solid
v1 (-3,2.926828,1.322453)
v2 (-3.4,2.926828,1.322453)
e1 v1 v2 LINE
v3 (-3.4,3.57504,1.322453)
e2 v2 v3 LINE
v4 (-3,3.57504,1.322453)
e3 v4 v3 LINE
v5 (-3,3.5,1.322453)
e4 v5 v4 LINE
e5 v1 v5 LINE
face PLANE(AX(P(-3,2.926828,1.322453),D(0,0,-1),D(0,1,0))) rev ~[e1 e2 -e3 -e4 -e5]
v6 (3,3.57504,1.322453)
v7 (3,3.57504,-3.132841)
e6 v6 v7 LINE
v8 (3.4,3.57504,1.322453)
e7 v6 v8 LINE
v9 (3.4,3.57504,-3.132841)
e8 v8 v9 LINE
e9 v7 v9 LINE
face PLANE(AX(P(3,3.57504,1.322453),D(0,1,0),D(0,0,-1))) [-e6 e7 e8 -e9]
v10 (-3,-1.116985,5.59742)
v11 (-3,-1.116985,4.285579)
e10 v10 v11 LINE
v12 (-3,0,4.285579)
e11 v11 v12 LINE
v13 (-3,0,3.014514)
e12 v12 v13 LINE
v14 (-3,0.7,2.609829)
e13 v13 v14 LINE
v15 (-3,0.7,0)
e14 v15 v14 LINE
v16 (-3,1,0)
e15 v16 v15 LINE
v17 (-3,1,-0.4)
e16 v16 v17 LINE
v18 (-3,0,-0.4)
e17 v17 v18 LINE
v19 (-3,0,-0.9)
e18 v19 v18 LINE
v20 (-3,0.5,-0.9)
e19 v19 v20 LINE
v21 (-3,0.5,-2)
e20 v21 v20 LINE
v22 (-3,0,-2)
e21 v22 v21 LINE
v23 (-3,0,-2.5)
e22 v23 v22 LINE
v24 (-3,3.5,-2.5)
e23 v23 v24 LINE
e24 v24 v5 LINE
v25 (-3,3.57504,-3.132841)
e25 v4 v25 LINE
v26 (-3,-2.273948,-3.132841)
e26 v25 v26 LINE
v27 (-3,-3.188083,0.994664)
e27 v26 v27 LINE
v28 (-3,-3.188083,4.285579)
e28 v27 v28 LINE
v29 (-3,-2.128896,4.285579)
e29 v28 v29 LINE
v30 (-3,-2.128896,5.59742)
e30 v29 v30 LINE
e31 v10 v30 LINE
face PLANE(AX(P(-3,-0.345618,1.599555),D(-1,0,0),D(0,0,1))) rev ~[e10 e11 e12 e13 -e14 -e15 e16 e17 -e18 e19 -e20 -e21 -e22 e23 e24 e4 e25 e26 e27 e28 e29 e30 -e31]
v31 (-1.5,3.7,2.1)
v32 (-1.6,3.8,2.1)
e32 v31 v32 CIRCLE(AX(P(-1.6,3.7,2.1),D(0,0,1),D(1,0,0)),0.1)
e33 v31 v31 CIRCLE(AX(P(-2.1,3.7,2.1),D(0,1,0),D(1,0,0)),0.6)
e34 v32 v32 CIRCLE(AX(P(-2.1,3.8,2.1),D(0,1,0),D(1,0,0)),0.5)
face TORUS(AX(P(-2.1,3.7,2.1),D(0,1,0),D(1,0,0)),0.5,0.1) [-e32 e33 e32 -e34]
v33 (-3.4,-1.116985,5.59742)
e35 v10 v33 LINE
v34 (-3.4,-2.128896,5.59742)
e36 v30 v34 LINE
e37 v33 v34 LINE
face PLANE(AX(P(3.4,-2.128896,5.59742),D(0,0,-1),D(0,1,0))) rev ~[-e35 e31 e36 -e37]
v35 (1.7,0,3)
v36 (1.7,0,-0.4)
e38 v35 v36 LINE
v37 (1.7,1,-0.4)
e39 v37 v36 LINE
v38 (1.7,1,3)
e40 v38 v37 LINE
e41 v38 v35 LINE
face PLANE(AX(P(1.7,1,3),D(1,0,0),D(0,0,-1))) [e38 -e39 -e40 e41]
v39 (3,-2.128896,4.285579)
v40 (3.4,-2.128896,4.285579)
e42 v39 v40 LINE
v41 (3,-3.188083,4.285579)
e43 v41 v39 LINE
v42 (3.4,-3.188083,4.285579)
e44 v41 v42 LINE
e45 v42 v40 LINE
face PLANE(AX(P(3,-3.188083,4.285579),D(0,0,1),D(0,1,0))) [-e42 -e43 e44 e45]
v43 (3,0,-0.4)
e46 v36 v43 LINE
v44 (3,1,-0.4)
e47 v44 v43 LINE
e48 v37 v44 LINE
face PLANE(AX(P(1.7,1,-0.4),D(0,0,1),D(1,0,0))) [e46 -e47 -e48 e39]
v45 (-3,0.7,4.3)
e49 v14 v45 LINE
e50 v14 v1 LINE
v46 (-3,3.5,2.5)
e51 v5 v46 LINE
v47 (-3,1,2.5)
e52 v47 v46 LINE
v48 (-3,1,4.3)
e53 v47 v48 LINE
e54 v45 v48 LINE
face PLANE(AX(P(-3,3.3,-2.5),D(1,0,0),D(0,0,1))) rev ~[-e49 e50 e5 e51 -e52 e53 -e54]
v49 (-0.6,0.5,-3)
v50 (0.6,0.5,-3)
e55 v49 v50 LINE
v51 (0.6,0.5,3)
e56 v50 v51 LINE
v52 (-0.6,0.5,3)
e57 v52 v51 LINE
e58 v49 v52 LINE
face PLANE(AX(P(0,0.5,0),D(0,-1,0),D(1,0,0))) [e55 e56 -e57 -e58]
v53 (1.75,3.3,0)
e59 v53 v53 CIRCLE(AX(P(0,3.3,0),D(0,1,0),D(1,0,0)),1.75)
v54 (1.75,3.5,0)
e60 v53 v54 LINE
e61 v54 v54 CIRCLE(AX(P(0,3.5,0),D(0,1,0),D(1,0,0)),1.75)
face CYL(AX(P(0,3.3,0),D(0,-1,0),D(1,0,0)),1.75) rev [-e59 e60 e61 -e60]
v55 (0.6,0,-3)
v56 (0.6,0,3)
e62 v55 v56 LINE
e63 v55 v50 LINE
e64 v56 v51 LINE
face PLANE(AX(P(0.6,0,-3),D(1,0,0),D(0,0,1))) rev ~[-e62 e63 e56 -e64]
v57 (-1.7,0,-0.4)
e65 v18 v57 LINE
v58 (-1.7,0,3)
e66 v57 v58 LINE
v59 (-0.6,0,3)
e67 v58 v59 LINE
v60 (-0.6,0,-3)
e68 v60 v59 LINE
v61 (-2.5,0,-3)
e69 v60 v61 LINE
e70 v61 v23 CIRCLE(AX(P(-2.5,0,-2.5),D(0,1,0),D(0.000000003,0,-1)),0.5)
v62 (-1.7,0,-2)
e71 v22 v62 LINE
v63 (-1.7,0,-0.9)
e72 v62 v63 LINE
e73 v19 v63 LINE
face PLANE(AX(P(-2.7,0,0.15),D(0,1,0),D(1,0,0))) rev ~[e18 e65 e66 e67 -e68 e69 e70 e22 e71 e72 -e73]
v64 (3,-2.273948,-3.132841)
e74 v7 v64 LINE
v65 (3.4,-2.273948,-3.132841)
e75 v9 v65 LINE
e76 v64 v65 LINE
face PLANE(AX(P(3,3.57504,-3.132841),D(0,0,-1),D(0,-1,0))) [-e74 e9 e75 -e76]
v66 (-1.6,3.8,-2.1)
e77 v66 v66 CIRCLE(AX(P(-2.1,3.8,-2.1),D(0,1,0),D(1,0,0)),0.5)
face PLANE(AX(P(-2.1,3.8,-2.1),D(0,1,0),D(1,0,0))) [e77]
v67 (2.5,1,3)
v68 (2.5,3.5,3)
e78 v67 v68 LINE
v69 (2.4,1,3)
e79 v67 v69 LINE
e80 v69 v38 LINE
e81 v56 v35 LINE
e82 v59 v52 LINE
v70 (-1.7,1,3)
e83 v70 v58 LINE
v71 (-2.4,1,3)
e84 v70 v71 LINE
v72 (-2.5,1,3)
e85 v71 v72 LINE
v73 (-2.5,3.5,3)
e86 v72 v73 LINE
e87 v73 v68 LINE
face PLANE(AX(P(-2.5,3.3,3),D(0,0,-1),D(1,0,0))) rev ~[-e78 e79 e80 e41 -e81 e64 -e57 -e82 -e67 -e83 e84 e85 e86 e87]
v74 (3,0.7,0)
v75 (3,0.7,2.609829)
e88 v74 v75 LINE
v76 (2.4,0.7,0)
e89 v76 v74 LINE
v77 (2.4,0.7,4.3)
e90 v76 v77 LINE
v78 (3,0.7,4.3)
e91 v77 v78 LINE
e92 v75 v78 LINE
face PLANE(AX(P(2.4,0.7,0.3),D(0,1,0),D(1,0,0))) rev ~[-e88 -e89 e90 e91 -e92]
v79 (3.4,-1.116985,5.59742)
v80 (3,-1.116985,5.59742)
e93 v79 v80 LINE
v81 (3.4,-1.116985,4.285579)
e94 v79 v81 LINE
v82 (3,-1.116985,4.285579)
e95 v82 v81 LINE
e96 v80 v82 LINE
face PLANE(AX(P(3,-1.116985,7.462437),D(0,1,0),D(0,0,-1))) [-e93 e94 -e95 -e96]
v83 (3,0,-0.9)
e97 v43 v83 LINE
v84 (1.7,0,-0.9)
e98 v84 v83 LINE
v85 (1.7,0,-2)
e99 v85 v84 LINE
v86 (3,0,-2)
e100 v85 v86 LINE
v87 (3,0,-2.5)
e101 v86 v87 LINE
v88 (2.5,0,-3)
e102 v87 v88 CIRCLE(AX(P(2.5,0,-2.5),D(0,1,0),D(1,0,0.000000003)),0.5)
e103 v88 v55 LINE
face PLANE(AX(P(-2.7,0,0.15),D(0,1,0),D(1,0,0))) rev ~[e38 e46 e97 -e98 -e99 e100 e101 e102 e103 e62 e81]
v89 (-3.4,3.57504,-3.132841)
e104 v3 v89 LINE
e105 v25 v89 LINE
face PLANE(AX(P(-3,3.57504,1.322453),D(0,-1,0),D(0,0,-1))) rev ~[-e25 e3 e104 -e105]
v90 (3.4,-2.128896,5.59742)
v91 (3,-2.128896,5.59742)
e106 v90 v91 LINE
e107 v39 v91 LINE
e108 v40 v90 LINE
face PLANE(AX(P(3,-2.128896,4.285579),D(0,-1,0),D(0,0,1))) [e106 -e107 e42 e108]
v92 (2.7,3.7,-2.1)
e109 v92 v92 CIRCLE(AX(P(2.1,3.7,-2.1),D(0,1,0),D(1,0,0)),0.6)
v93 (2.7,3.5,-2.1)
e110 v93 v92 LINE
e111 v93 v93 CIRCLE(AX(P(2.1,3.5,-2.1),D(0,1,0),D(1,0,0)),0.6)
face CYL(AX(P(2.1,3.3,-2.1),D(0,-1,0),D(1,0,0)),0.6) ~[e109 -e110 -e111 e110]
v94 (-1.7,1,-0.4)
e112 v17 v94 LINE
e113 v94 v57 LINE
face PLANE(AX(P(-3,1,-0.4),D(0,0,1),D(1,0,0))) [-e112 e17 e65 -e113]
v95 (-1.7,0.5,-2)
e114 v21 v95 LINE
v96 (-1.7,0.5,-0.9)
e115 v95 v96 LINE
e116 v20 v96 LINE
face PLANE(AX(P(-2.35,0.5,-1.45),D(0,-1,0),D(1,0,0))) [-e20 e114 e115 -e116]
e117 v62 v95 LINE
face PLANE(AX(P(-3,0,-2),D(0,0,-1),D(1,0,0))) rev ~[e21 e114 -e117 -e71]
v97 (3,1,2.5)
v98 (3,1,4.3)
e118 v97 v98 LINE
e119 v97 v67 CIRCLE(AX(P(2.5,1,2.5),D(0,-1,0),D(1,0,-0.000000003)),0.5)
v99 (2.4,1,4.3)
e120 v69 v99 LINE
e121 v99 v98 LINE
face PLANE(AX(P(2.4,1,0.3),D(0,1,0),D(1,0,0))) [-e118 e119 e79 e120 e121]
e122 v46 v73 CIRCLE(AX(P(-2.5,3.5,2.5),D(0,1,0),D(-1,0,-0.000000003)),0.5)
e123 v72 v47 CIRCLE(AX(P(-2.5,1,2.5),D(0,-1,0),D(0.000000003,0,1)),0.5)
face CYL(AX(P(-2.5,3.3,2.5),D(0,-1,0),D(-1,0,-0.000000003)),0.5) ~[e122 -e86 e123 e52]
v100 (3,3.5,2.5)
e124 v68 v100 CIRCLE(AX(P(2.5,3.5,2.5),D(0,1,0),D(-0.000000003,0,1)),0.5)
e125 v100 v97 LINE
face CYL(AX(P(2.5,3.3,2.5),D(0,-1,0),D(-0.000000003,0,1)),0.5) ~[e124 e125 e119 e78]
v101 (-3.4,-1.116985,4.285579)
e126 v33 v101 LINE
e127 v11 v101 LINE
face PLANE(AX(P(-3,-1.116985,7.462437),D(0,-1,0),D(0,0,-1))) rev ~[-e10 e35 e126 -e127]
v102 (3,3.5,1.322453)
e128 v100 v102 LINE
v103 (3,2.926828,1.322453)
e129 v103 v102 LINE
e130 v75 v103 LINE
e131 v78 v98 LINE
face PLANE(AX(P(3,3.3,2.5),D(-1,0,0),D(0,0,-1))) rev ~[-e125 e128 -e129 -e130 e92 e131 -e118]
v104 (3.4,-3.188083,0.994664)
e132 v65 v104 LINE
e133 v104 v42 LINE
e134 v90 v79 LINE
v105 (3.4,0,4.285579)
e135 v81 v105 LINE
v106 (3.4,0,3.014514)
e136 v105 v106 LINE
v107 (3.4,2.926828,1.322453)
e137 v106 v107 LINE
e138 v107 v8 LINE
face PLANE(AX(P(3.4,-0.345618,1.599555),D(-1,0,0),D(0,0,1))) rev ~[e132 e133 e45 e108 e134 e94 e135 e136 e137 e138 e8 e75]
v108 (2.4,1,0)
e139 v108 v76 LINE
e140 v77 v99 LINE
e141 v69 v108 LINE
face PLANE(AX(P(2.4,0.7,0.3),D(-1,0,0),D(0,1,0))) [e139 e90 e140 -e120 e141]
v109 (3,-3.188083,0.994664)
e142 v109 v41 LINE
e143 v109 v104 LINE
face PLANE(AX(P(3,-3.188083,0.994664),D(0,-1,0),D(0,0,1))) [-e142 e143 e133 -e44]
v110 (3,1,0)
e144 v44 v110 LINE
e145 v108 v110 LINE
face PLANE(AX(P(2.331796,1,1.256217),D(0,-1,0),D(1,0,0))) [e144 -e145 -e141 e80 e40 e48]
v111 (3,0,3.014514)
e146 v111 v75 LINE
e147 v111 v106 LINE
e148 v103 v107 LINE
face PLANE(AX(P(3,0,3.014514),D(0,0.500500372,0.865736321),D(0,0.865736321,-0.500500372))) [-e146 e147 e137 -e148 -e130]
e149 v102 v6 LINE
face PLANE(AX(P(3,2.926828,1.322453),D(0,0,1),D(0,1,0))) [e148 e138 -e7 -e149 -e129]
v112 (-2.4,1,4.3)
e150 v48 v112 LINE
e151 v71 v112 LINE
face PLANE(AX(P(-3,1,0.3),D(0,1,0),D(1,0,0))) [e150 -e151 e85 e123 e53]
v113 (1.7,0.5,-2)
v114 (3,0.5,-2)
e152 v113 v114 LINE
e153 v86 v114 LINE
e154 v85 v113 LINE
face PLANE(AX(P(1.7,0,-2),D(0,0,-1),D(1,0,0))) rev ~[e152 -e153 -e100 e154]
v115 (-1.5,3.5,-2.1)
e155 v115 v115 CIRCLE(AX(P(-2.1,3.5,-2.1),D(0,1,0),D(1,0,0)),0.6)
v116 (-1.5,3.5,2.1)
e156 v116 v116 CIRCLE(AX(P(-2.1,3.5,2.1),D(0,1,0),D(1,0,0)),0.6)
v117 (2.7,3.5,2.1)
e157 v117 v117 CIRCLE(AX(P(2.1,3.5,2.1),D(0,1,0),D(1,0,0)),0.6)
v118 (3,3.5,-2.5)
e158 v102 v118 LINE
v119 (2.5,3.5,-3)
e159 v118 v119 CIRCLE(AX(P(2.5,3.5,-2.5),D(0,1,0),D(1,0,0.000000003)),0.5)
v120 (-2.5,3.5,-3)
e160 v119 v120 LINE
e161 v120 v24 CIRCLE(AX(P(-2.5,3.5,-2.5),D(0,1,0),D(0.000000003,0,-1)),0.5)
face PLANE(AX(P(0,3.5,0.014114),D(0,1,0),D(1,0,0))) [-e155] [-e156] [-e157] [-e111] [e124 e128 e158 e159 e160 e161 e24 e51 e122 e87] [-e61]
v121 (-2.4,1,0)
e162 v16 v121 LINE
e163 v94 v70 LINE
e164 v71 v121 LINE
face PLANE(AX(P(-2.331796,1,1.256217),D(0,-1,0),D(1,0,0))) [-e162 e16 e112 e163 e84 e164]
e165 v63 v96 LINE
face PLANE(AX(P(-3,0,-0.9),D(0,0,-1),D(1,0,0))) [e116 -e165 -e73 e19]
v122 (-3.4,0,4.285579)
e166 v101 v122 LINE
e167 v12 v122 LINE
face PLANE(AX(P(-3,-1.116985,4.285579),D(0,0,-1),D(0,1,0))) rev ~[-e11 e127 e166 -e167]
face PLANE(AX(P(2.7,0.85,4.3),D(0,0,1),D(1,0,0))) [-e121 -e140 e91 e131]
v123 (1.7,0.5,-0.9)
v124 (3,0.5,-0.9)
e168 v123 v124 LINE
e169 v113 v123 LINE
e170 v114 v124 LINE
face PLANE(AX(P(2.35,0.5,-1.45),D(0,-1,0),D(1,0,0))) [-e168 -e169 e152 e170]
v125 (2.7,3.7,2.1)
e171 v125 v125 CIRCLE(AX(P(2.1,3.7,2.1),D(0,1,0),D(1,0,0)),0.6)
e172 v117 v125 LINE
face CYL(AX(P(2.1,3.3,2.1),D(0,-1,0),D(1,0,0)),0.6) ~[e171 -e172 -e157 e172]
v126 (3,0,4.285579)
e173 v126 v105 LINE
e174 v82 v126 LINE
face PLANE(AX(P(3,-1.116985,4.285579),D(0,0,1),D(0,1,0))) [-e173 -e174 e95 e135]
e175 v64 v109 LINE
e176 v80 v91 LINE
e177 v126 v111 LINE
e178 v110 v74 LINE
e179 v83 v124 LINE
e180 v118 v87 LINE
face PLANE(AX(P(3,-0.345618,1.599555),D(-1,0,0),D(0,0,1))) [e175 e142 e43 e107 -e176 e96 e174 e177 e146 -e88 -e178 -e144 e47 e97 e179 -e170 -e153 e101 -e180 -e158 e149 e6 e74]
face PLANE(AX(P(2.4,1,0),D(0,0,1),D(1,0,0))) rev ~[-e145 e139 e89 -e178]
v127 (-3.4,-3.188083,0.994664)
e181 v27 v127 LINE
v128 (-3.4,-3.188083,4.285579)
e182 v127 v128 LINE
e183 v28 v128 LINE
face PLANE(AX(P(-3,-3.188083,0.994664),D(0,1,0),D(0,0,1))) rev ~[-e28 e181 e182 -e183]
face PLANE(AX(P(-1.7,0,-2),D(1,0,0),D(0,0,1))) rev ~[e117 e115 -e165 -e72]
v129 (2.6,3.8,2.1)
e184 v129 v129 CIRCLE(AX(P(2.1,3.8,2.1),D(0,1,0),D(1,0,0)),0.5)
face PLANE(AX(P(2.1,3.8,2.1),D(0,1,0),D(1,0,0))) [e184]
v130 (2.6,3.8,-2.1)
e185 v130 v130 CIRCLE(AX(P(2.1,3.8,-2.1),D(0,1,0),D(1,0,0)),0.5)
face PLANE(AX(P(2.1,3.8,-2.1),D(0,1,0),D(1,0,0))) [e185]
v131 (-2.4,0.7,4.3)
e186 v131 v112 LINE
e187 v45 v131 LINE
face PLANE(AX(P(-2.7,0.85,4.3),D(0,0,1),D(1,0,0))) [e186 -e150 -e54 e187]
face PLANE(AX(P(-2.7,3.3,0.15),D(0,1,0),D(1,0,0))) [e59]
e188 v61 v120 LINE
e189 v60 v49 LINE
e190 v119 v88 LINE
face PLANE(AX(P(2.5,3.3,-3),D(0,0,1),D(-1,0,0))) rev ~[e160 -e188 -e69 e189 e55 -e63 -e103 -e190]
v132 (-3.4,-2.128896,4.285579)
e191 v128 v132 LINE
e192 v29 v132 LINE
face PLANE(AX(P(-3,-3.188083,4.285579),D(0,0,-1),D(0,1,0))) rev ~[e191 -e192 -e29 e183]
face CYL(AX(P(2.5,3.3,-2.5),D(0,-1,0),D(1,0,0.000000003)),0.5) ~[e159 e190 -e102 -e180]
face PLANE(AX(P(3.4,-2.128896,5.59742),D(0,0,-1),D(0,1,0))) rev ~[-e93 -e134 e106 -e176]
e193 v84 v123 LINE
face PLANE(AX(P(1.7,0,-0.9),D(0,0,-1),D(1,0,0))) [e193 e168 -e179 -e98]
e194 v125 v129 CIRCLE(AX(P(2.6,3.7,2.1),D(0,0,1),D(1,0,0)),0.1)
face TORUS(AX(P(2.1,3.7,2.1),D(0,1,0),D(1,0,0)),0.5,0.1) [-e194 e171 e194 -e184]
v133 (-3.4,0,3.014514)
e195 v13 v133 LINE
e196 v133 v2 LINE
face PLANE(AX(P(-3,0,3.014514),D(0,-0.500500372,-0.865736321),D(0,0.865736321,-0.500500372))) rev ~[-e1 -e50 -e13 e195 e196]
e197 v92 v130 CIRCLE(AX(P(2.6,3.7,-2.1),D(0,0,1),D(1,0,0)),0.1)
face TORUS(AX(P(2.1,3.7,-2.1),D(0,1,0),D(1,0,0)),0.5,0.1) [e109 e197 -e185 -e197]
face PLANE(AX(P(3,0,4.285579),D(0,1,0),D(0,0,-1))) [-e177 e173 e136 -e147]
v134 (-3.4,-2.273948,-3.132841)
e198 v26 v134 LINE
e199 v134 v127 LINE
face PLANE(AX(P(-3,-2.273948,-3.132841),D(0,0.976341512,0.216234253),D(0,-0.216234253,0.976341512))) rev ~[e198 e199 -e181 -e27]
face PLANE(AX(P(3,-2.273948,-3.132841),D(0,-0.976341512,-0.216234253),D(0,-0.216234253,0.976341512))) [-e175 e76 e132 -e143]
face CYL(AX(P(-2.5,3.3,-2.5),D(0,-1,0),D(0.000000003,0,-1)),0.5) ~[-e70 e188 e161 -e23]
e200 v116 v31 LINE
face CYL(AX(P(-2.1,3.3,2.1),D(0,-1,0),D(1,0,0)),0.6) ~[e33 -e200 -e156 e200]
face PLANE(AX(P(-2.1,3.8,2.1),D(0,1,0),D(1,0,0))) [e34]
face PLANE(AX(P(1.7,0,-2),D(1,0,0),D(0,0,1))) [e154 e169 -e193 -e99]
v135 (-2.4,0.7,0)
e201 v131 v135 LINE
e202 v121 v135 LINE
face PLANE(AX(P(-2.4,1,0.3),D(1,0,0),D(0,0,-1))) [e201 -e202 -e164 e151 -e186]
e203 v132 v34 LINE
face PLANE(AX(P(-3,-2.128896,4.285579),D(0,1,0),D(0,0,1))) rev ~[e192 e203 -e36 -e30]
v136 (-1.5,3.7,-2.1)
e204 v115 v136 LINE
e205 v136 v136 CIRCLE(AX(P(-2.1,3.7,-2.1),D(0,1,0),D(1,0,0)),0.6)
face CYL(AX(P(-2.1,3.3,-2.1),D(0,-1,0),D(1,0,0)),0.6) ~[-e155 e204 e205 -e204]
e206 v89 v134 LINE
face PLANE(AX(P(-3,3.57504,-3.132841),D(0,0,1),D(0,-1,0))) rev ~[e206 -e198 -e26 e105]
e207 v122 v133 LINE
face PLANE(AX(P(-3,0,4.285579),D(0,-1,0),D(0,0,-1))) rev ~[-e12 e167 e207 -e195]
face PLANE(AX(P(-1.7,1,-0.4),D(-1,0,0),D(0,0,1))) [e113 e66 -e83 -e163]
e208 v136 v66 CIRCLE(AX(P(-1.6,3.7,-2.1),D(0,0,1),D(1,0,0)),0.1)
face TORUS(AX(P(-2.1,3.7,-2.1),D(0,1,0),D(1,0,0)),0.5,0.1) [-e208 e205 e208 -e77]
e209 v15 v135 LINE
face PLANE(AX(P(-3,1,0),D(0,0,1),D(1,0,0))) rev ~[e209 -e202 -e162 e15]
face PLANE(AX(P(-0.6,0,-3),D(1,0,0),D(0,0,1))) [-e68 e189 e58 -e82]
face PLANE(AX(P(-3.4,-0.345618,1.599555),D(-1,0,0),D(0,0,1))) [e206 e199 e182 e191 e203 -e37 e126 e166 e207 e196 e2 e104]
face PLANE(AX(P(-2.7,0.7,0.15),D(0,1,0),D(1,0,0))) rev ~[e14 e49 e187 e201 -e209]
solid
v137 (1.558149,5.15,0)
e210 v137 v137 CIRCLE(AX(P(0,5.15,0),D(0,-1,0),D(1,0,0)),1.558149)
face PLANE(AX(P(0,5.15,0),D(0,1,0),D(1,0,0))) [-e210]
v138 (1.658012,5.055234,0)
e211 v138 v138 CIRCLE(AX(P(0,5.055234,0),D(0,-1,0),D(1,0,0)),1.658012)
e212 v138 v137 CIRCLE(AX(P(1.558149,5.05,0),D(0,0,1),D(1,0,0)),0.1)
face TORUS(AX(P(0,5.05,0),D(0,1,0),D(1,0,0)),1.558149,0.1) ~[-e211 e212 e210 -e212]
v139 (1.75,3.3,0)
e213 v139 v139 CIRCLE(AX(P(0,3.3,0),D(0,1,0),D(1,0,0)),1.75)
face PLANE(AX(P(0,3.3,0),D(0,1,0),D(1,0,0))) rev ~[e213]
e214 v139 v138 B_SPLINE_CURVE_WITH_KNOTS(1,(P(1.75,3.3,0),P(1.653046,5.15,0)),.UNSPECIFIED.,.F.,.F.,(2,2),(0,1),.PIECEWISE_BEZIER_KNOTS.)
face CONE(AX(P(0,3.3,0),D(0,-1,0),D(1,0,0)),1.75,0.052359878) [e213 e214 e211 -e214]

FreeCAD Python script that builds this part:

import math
import FreeCAD as App
import Part
import Sketcher
Q = App.Units.Quantity


def edges_at(feature, points):
    """Names of the edges that pass closest to the given points."""
    edges = feature.Shape.Edges
    near = lambda p: min(range(len(edges)), key=lambda i: edges[i].distToShape(Part.Vertex(*p))[0])
    return sorted({f"Edge{near(p) + 1}" for p in points})

doc = App.newDocument("Part")
body = doc.addObject("PartDesign::Body", "Body")

sketch1 = body.newObject("Sketcher::SketchObject", "Sketch")
sketch1.AttachmentSupport = (doc.getObject("XZ_Plane"), [""])
sketch1.MapMode = "FlatFace"
sketch1.addGeometry(Part.ArcOfCircle(Part.Circle(App.Vector(-2.5, 2.5, 0), App.Vector(0, 0, 1), 0.5), math.radians(90), math.radians(180)), False)
sketch1.addGeometry(Part.LineSegment(App.Vector(-2.5, 3, 0), App.Vector(2.5, 3, 0)), False)
sketch1.addGeometry(Part.ArcOfCircle(Part.Circle(App.Vector(2.5, 2.5, 0), App.Vector(0, 0, 1), 0.5), math.radians(0), math.radians(90)), False)
sketch1.addGeometry(Part.LineSegment(App.Vector(3, 2.5, 0), App.Vector(3, -2.5, 0)), False)
sketch1.addGeometry(Part.ArcOfCircle(Part.Circle(App.Vector(2.5, -2.5, 0), App.Vector(0, 0, 1), 0.5), math.radians(-90), math.radians(0)), False)
sketch1.addGeometry(Part.LineSegment(App.Vector(2.5, -3, 0), App.Vector(-2.5, -3, 0)), False)
sketch1.addGeometry(Part.ArcOfCircle(Part.Circle(App.Vector(-2.5, -2.5, 0), App.Vector(0, 0, 1), 0.5), math.radians(180), math.radians(270)), False)
sketch1.addGeometry(Part.LineSegment(App.Vector(-3, -2.5, 0), App.Vector(-3, 2.5, 0)), False)
sketch1.addConstraint(Sketcher.Constraint("Tangent", 0, 1, 1, 1))
sketch1.addConstraint(Sketcher.Constraint("Tangent", 1, 2, 2, 2))
sketch1.addConstraint(Sketcher.Constraint("Tangent", 2, 1, 3, 1))
sketch1.addConstraint(Sketcher.Constraint("Tangent", 3, 2, 4, 2))
sketch1.addConstraint(Sketcher.Constraint("Tangent", 4, 1, 5, 1))
sketch1.addConstraint(Sketcher.Constraint("Tangent", 5, 2, 6, 2))
sketch1.addConstraint(Sketcher.Constraint("Tangent", 6, 1, 7, 1))
sketch1.addConstraint(Sketcher.Constraint("Tangent", 7, 2, 0, 2))
sketch1.addConstraint(Sketcher.Constraint("Horizontal", 1))
sketch1.addConstraint(Sketcher.Constraint("Vertical", 3))
sketch1.addConstraint(Sketcher.Constraint("Horizontal", 5))
sketch1.addConstraint(Sketcher.Constraint("Vertical", 7))
sketch1.addConstraint(Sketcher.Constraint("Equal", 0, 2))
sketch1.addConstraint(Sketcher.Constraint("Equal", 2, 4))
sketch1.addConstraint(Sketcher.Constraint("Equal", 4, 6))
sketch1.addConstraint(Sketcher.Constraint("Symmetric", 0, 3, 4, 3, -1, 1))
sketch1.addConstraint(Sketcher.Constraint("Equal", 5, 3))
sketch1.addConstraint(Sketcher.Constraint("Radius", 0, Q("0.5 mm")))
sketch1.addConstraint(Sketcher.Constraint("DistanceX", 1, 1, 1, 2, Q("5 mm")))
pad1 = body.newObject("PartDesign::Pad", "Pad")
pad1.Profile = sketch1
pad1.Length = 3.3
pad1.Reversed = True

sketch2 = body.newObject("Sketcher::SketchObject", "Sketch001")
sketch2.AttachmentSupport = (doc.getObject("XZ_Plane"), [""])
sketch2.MapMode = "FlatFace"
sketch2.AttachmentOffset = App.Placement(App.Vector(0, 0, -3.3), App.Rotation())
sketch2.addGeometry(Part.Circle(App.Vector(2.1, 2.1, 0), App.Vector(0, 0, 1), 0.6), False)
sketch2.addGeometry(Part.Circle(App.Vector(-2.1, 2.1, 0), App.Vector(0, 0, 1), 0.6), False)
sketch2.addGeometry(Part.Circle(App.Vector(-2.1, -2.1, 0), App.Vector(0, 0, 1), 0.6), False)
sketch2.addGeometry(Part.Circle(App.Vector(2.1, -2.1, 0), App.Vector(0, 0, 1), 0.6), False)
sketch2.addConstraint(Sketcher.Constraint("Equal", 0, 1))
sketch2.addConstraint(Sketcher.Constraint("Equal", 1, 2))
sketch2.addConstraint(Sketcher.Constraint("Equal", 2, 3))
sketch2.addConstraint(Sketcher.Constraint("Symmetric", 0, 3, 2, 3, -1, 1))
sketch2.addConstraint(Sketcher.Constraint("Symmetric", 1, 3, 3, 3, -1, 1))
sketch2.addConstraint(Sketcher.Constraint("Symmetric", 0, 3, 1, 3, -2))
sketch2.addConstraint(Sketcher.Constraint("Diameter", 0, Q("1.2 mm")))
sketch2.addConstraint(Sketcher.Constraint("DistanceX", -1, 1, 0, 3, Q("2.1 mm")))
sketch2.addConstraint(Sketcher.Constraint("DistanceY", -1, 1, 0, 3, Q("2.1 mm")))
pad2 = body.newObject("PartDesign::Pad", "Pad001")
pad2.Profile = sketch2
pad2.Length = 0.5
pad2.Reversed = True

sketch3 = body.newObject("Sketcher::SketchObject", "Sketch002")
sketch3.AttachmentSupport = (doc.getObject("XZ_Plane"), [""])
sketch3.MapMode = "FlatFace"
sketch3.AttachmentOffset = App.Placement(App.Vector(0, 0, -1), App.Rotation())
sketch3.addGeometry(Part.LineSegment(App.Vector(-1.7, -0.4, 0), App.Vector(-1.7, 3, 0)), False)
sketch3.addGeometry(Part.LineSegment(App.Vector(-1.7, 3, 0), App.Vector(-2.5, 3, 0)), False)
sketch3.addGeometry(Part.ArcOfCircle(Part.Circle(App.Vector(-2.5, 2.5, 0), App.Vector(0, 0, 1), 0.5), math.radians(90), math.radians(180)), False)
sketch3.addGeometry(Part.LineSegment(App.Vector(-3, 2.5, 0), App.Vector(-3, -0.4, 0)), False)
sketch3.addGeometry(Part.LineSegment(App.Vector(-3, -0.4, 0), App.Vector(-1.7, -0.4, 0)), False)
sketch3.addGeometry(Part.LineSegment(App.Vector(2.5, 3, 0), App.Vector(1.7, 3, 0)), False)
sketch3.addGeometry(Part.LineSegment(App.Vector(1.7, 3, 0), App.Vector(1.7, -0.4, 0)), False)
sketch3.addGeometry(Part.LineSegment(App.Vector(1.7, -0.4, 0), App.Vector(3, -0.4, 0)), False)
sketch3.addGeometry(Part.LineSegment(App.Vector(3, -0.4, 0), App.Vector(3, 2.5, 0)), False)
sketch3.addGeometry(Part.ArcOfCircle(Part.Circle(App.Vector(2.5, 2.5, 0), App.Vector(0, 0, 1), 0.5), math.radians(0), math.radians(90)), False)
sketch3.addConstraint(Sketcher.Constraint("Coincident", 0, 2, 1, 1))
sketch3.addConstraint(Sketcher.Constraint("Tangent", 1, 2, 2, 1))
sketch3.addConstraint(Sketcher.Constraint("Tangent", 2, 2, 3, 1))
sketch3.addConstraint(Sketcher.Constraint("Coincident", 3, 2, 4, 1))
sketch3.addConstraint(Sketcher.Constraint("Coincident", 4, 2, 0, 1))
sketch3.addConstraint(Sketcher.Constraint("Coincident", 5, 2, 6, 1))
sketch3.addConstraint(Sketcher.Constraint("Coincident", 6, 2, 7, 1))
sketch3.addConstraint(Sketcher.Constraint("Coincident", 7, 2, 8, 1))
sketch3.addConstraint(Sketcher.Constraint("Tangent", 8, 2, 9, 1))
sketch3.addConstraint(Sketcher.Constraint("Tangent", 9, 2, 5, 1))
sketch3.addConstraint(Sketcher.Constraint("Vertical", 0))
sketch3.addConstraint(Sketcher.Constraint("Horizontal", 1))
sketch3.addConstraint(Sketcher.Constraint("Vertical", 3))
sketch3.addConstraint(Sketcher.Constraint("Horizontal", 4))
sketch3.addConstraint(Sketcher.Constraint("Horizontal", 5))
sketch3.addConstraint(Sketcher.Constraint("Vertical", 6))
sketch3.addConstraint(Sketcher.Constraint("Horizontal", 7))
sketch3.addConstraint(Sketcher.Constraint("Vertical", 8))
sketch3.addConstraint(Sketcher.Constraint("Equal", 2, 9))
sketch3.addConstraint(Sketcher.Constraint("Symmetric", 2, 3, 9, 3, -2))
sketch3.addConstraint(Sketcher.Constraint("Symmetric", 4, 2, 6, 2, -2))
sketch3.addConstraint(Sketcher.Constraint("Radius", 2, Q("0.5 mm")))
sketch3.addConstraint(Sketcher.Constraint("DistanceX", 1, 2, 1, 1, Q("0.8 mm")))
sketch3.addConstraint(Sketcher.Constraint("DistanceY", 0, 1, 0, 2, Q("3.4 mm")))
sketch3.addConstraint(Sketcher.Constraint("DistanceY", -1, 1, 0, 2, Q("3 mm")))
sketch3.addConstraint(Sketcher.Constraint("DistanceX", 2, 2, -1, 1, Q("3 mm")))
pocket1 = body.newObject("PartDesign::Pocket", "Pocket")
pocket1.Profile = sketch3
pocket1.Length = 1
pocket1.Reversed = True

sketch4 = body.newObject("Sketcher::SketchObject", "Sketch003")
sketch4.AttachmentSupport = (doc.getObject("XZ_Plane"), [""])
sketch4.MapMode = "FlatFace"
sketch4.addGeometry(Part.LineSegment(App.Vector(-0.6, 3, 0), App.Vector(-0.6, -3, 0)), False)
sketch4.addGeometry(Part.LineSegment(App.Vector(-0.6, -3, 0), App.Vector(0.6, -3, 0)), False)
sketch4.addGeometry(Part.LineSegment(App.Vector(0.6, -3, 0), App.Vector(0.6, 3, 0)), False)
sketch4.addGeometry(Part.LineSegment(App.Vector(0.6, 3, 0), App.Vector(-0.6, 3, 0)), False)
sketch4.addGeometry(Part.LineSegment(App.Vector(1.7, -0.9, 0), App.Vector(1.7, -2, 0)), False)
sketch4.addGeometry(Part.LineSegment(App.Vector(1.7, -2, 0), App.Vector(3, -2, 0)), False)
sketch4.addGeometry(Part.LineSegment(App.Vector(3, -2, 0), App.Vector(3, -0.9, 0)), False)
sketch4.addGeometry(Part.LineSegment(App.Vector(3, -0.9, 0), App.Vector(1.7, -0.9, 0)), False)
sketch4.addGeometry(Part.LineSegment(App.Vector(-3, -0.9, 0), App.Vector(-3, -2, 0)), False)
sketch4.addGeometry(Part.LineSegment(App.Vector(-3, -2, 0), App.Vector(-1.7, -2, 0)), False)
sketch4.addGeometry(Part.LineSegment(App.Vector(-1.7, -2, 0), App.Vector(-1.7, -0.9, 0)), False)
sketch4.addGeometry(Part.LineSegment(App.Vector(-1.7, -0.9, 0), App.Vector(-3, -0.9, 0)), False)
sketch4.addConstraint(Sketcher.Constraint("Coincident", 0, 2, 1, 1))
sketch4.addConstraint(Sketcher.Constraint("Coincident", 1, 2, 2, 1))
sketch4.addConstraint(Sketcher.Constraint("Coincident", 2, 2, 3, 1))
sketch4.addConstraint(Sketcher.Constraint("Coincident", 3, 2, 0, 1))
sketch4.addConstraint(Sketcher.Constraint("Coincident", 4, 2, 5, 1))
sketch4.addConstraint(Sketcher.Constraint("Coincident", 5, 2, 6, 1))
sketch4.addConstraint(Sketcher.Constraint("Coincident", 6, 2, 7, 1))
sketch4.addConstraint(Sketcher.Constraint("Coincident", 7, 2, 4, 1))
sketch4.addConstraint(Sketcher.Constraint("Coincident", 8, 2, 9, 1))
sketch4.addConstraint(Sketcher.Constraint("Coincident", 9, 2, 10, 1))
sketch4.addConstraint(Sketcher.Constraint("Coincident", 10, 2, 11, 1))
sketch4.addConstraint(Sketcher.Constraint("Coincident", 11, 2, 8, 1))
sketch4.addConstraint(Sketcher.Constraint("Vertical", 0))
sketch4.addConstraint(Sketcher.Constraint("Horizontal", 1))
sketch4.addConstraint(Sketcher.Constraint("Vertical", 2))
sketch4.addConstraint(Sketcher.Constraint("Horizontal", 3))
sketch4.addConstraint(Sketcher.Constraint("Vertical", 4))
sketch4.addConstraint(Sketcher.Constraint("Horizontal", 5))
sketch4.addConstraint(Sketcher.Constraint("Vertical", 6))
sketch4.addConstraint(Sketcher.Constraint("Horizontal", 7))
sketch4.addConstraint(Sketcher.Constraint("Vertical", 8))
sketch4.addConstraint(Sketcher.Constraint("Horizontal", 9))
sketch4.addConstraint(Sketcher.Constraint("Vertical", 10))
sketch4.addConstraint(Sketcher.Constraint("Horizontal", 11))
sketch4.addConstraint(Sketcher.Constraint("Symmetric", 0, 2, 2, 2, -1, 1))
sketch4.addConstraint(Sketcher.Constraint("Symmetric", 5, 2, 8, 2, -2))
sketch4.addConstraint(Sketcher.Constraint("Symmetric", 7, 2, 10, 2, -2))
sketch4.addConstraint(Sketcher.Constraint("DistanceY", 0, 2, 0, 1, Q("6 mm")))
sketch4.addConstraint(Sketcher.Constraint("DistanceX", 1, 1, 1, 2, Q("1.2 mm")))
sketch4.addConstraint(Sketcher.Constraint("DistanceX", 5, 1, 5, 2, Q("1.3 mm")))
sketch4.addConstraint(Sketcher.Constraint("DistanceY", 4, 2, 4, 1, Q("1.1 mm")))
sketch4.addConstraint(Sketcher.Constraint("DistanceY", 4, 2, -1, 1, Q("2 mm")))
sketch4.addConstraint(Sketcher.Constraint("DistanceX", -1, 1, 5, 2, Q("3 mm")))
pocket2 = body.newObject("PartDesign::Pocket", "Pocket001")
pocket2.Profile = sketch4
pocket2.Length = 0.5
doc.recompute()

fillet = body.newObject("PartDesign::Fillet", "Fillet")
fillet.Base = (pocket2, edges_at(pocket2, [
    (1.5, 3.8, 2.1),
    (-2.7, 3.8, 2.1),
    (-2.7, 3.8, -2.1),
    (1.5, 3.8, -2.1),
]))
fillet.Radius = 0.1
body2 = doc.addObject("PartDesign::Body", "Body001")

sketch5 = body2.newObject("Sketcher::SketchObject", "Sketch004")
sketch5.AttachmentSupport = (doc.getObject("XZ_Plane001"), [""])
sketch5.MapMode = "FlatFace"
sketch5.AttachmentOffset = App.Placement(App.Vector(0, 0, -3.3), App.Rotation())
sketch5.addGeometry(Part.LineSegment(App.Vector(2.5, -3, 0), App.Vector(-2.5, -3, 0)), False)
sketch5.addGeometry(Part.ArcOfCircle(Part.Circle(App.Vector(-2.5, -2.5, 0), App.Vector(0, 0, 1), 0.5), math.radians(180), math.radians(270)), False)
sketch5.addGeometry(Part.LineSegment(App.Vector(-3, -2.5, 0), App.Vector(-3, 2.5, 0)), False)
sketch5.addGeometry(Part.ArcOfCircle(Part.Circle(App.Vector(-2.5, 2.5, 0), App.Vector(0, 0, 1), 0.5), math.radians(90), math.radians(180)), False)
sketch5.addGeometry(Part.LineSegment(App.Vector(-2.5, 3, 0), App.Vector(2.5, 3, 0)), False)
sketch5.addGeometry(Part.ArcOfCircle(Part.Circle(App.Vector(2.5, 2.5, 0), App.Vector(0, 0, 1), 0.5), math.radians(0), math.radians(90)), False)
sketch5.addGeometry(Part.LineSegment(App.Vector(3, 2.5, 0), App.Vector(3, -2.5, 0)), False)
sketch5.addGeometry(Part.ArcOfCircle(Part.Circle(App.Vector(2.5, -2.5, 0), App.Vector(0, 0, 1), 0.5), math.radians(-90), math.radians(0)), False)
sketch5.addGeometry(Part.Circle(App.Vector(-2.1, 2.1, 0), App.Vector(0, 0, 1), 0.6), False)
sketch5.addGeometry(Part.Circle(App.Vector(2.1, 2.1, 0), App.Vector(0, 0, 1), 0.6), False)
sketch5.addGeometry(Part.Circle(App.Vector(-2.1, -2.1, 0), App.Vector(0, 0, 1), 0.6), False)
sketch5.addGeometry(Part.Circle(App.Vector(0, 0, 0), App.Vector(0, 0, 1), 1.75), False)
sketch5.addGeometry(Part.Circle(App.Vector(2.1, -2.1, 0), App.Vector(0, 0, 1), 0.6), False)
sketch5.addConstraint(Sketcher.Constraint("Tangent", 0, 2, 1, 2))
sketch5.addConstraint(Sketcher.Constraint("Tangent", 1, 1, 2, 1))
sketch5.addConstraint(Sketcher.Constraint("Tangent", 2, 2, 3, 2))
sketch5.addConstraint(Sketcher.Constraint("Tangent", 3, 1, 4, 1))
sketch5.addConstraint(Sketcher.Constraint("Tangent", 4, 2, 5, 2))
sketch5.addConstraint(Sketcher.Constraint("Tangent", 5, 1, 6, 1))
sketch5.addConstraint(Sketcher.Constraint("Tangent", 6, 2, 7, 2))
sketch5.addConstraint(Sketcher.Constraint("Tangent", 7, 1, 0, 1))
sketch5.addConstraint(Sketcher.Constraint("Horizontal", 0))
sketch5.addConstraint(Sketcher.Constraint("Vertical", 2))
sketch5.addConstraint(Sketcher.Constraint("Horizontal", 4))
sketch5.addConstraint(Sketcher.Constraint("Vertical", 6))
sketch5.addConstraint(Sketcher.Constraint("Coincident", 11, 3, -1, 1))
sketch5.addConstraint(Sketcher.Constraint("Equal", 1, 3))
sketch5.addConstraint(Sketcher.Constraint("Equal", 3, 5))
sketch5.addConstraint(Sketcher.Constraint("Equal", 5, 7))
sketch5.addConstraint(Sketcher.Constraint("Equal", 8, 9))
sketch5.addConstraint(Sketcher.Constraint("Equal", 9, 10))
sketch5.addConstraint(Sketcher.Constraint("Equal", 10, 12))
sketch5.addConstraint(Sketcher.Constraint("Symmetric", 1, 3, 5, 3, -1, 1))
sketch5.addConstraint(Sketcher.Constraint("Symmetric", 9, 3, 10, 3, -1, 1))
sketch5.addConstraint(Sketcher.Constraint("Symmetric", 8, 3, 12, 3, -1, 1))
sketch5.addConstraint(Sketcher.Constraint("Symmetric", 8, 3, 9, 3, -2))
sketch5.addConstraint(Sketcher.Constraint("Equal", 4, 2))
sketch5.addConstraint(Sketcher.Constraint("Diameter", 8, Q("1.2 mm")))
sketch5.addConstraint(Sketcher.Constraint("Diameter", 11, Q("3.5 mm")))
sketch5.addConstraint(Sketcher.Constraint("Radius", 1, Q("0.5 mm")))
sketch5.addConstraint(Sketcher.Constraint("DistanceX", 0, 2, 0, 1, Q("5 mm")))
sketch5.addConstraint(Sketcher.Constraint("DistanceX", 8, 3, -1, 1, Q("2.1 mm")))
sketch5.addConstraint(Sketcher.Constraint("DistanceY", -1, 1, 8, 3, Q("2.1 mm")))
pad3 = body2.newObject("PartDesign::Pad", "Pad002")
pad3.Profile = sketch5
pad3.Length = 0.2
pad3.Reversed = True
body3 = doc.addObject("PartDesign::Body", "Body002")

sketch6 = body3.newObject("Sketcher::SketchObject", "Sketch005")
sketch6.AttachmentSupport = (doc.getObject("XZ_Plane002"), [""])
sketch6.MapMode = "FlatFace"
sketch6.AttachmentOffset = App.Placement(App.Vector(0, 0, -3.3), App.Rotation())
sketch6.addGeometry(Part.Circle(App.Vector(0, 0, 0), App.Vector(0, 0, 1), 1.75), False)
sketch6.addConstraint(Sketcher.Constraint("Coincident", 0, 3, -1, 1))
sketch6.addConstraint(Sketcher.Constraint("Diameter", 0, Q("3.5 mm")))
pad4 = body3.newObject("PartDesign::Pad", "Pad003")
pad4.Profile = sketch6
pad4.Length = 1.85
pad4.Reversed = True
pad4.TaperAngle = -3
doc.recompute()

fillet2 = body3.newObject("PartDesign::Fillet", "Fillet001")
fillet2.Base = (pad4, edges_at(pad4, [(-1.653, 5.15, 0)]))
fillet2.Radius = 0.1
body4 = doc.addObject("PartDesign::Body", "Body003")

sketch7 = body4.newObject("Sketcher::SketchObject", "Sketch006")
sketch7.AttachmentSupport = (doc.getObject("XZ_Plane003"), [""])
sketch7.MapMode = "FlatFace"
sketch7.AttachmentOffset = App.Placement(App.Vector(0, 0, -1), App.Rotation())
sketch7.addGeometry(Part.LineSegment(App.Vector(-3, 0, 0), App.Vector(-3, 0.3, 0)), False)
sketch7.addGeometry(Part.LineSegment(App.Vector(-3, 0.3, 0), App.Vector(-2.4, 0.3, 0)), False)
sketch7.addGeometry(Part.LineSegment(App.Vector(-2.4, 0.3, 0), App.Vector(-2.4, 0, 0)), False)
sketch7.addGeometry(Part.LineSegment(App.Vector(-2.4, 0, 0), App.Vector(-3, 0, 0)), False)
sketch7.addConstraint(Sketcher.Constraint("Coincident", 0, 2, 1, 1))
sketch7.addConstraint(Sketcher.Constraint("Coincident", 1, 2, 2, 1))
sketch7.addConstraint(Sketcher.Constraint("Coincident", 2, 2, 3, 1))
sketch7.addConstraint(Sketcher.Constraint("Coincident", 3, 2, 0, 1))
sketch7.addConstraint(Sketcher.Constraint("Vertical", 0))
sketch7.addConstraint(Sketcher.Constraint("Horizontal", 1))
sketch7.addConstraint(Sketcher.Constraint("Vertical", 2))
sketch7.addConstraint(Sketcher.Constraint("Horizontal", 3))
sketch7.addConstraint(Sketcher.Constraint("PointOnObject", 2, 2, -1))
sketch7.addConstraint(Sketcher.Constraint("DistanceX", 1, 1, 1, 2, Q("0.6 mm")))
sketch7.addConstraint(Sketcher.Constraint("DistanceY", 0, 1, 0, 2, Q("0.3 mm")))
sketch7.addConstraint(Sketcher.Constraint("DistanceX", 0, 2, -1, 1, Q("3 mm")))
pad5 = body4.newObject("PartDesign::Pad", "Pad004")
pad5.Profile = sketch7
pad5.Length = 0.3
body5 = doc.addObject("PartDesign::Body", "Body004")

sketch8 = body5.newObject("Sketcher::SketchObject", "Sketch007")
sketch8.AttachmentSupport = (doc.getObject("XZ_Plane004"), [""])
sketch8.MapMode = "FlatFace"
sketch8.AttachmentOffset = App.Placement(App.Vector(0, 0, -1), App.Rotation())
sketch8.addGeometry(Part.LineSegment(App.Vector(2.4, 0, 0), App.Vector(2.4, 0.3, 0)), False)
sketch8.addGeometry(Part.LineSegment(App.Vector(2.4, 0.3, 0), App.Vector(3, 0.3, 0)), False)
sketch8.addGeometry(Part.LineSegment(App.Vector(3, 0.3, 0), App.Vector(3, 0, 0)), False)
sketch8.addGeometry(Part.LineSegment(App.Vector(3, 0, 0), App.Vector(2.4, 0, 0)), False)
sketch8.addConstraint(Sketcher.Constraint("Coincident", 0, 2, 1, 1))
sketch8.addConstraint(Sketcher.Constraint("Coincident", 1, 2, 2, 1))
sketch8.addConstraint(Sketcher.Constraint("Coincident", 2, 2, 3, 1))
sketch8.addConstraint(Sketcher.Constraint("Coincident", 3, 2, 0, 1))
sketch8.addConstraint(Sketcher.Constraint("Vertical", 0))
sketch8.addConstraint(Sketcher.Constraint("Horizontal", 1))
sketch8.addConstraint(Sketcher.Constraint("Vertical", 2))
sketch8.addConstraint(Sketcher.Constraint("Horizontal", 3))
sketch8.addConstraint(Sketcher.Constraint("PointOnObject", 2, 2, -1))
sketch8.addConstraint(Sketcher.Constraint("DistanceX", 1, 1, 1, 2, Q("0.6 mm")))
sketch8.addConstraint(Sketcher.Constraint("DistanceY", 0, 1, 0, 2, Q("0.3 mm")))
sketch8.addConstraint(Sketcher.Constraint("DistanceX", -1, 1, 1, 2, Q("3 mm")))
pad6 = body5.newObject("PartDesign::Pad", "Pad005")
pad6.Profile = sketch8
pad6.Length = 0.3
doc.recompute()

boolean = body.newObject("PartDesign::Boolean", "Boolean")
boolean.Type = "Fuse"
boolean.addObjects([body4])
doc.recompute()

boolean2 = body.newObject("PartDesign::Boolean", "Boolean001")
boolean2.Type = "Fuse"
boolean2.addObjects([body5])

sketch9 = body.newObject("Sketcher::SketchObject", "Sketch008")
sketch9.AttachmentSupport = (doc.getObject("XY_Plane"), [""])
sketch9.MapMode = "FlatFace"
sketch9.AttachmentOffset = App.Placement(App.Vector(0, 0, 0.3), App.Rotation())
sketch9.addGeometry(Part.LineSegment(App.Vector(2.4, 1, 0), App.Vector(2.4, 0.7, 0)), False)
sketch9.addGeometry(Part.LineSegment(App.Vector(2.4, 0.7, 0), App.Vector(3, 0.7, 0)), False)
sketch9.addGeometry(Part.LineSegment(App.Vector(3, 0.7, 0), App.Vector(3, 1, 0)), False)
sketch9.addGeometry(Part.LineSegment(App.Vector(3, 1, 0), App.Vector(2.4, 1, 0)), False)
sketch9.addGeometry(Part.LineSegment(App.Vector(-3, 1, 0), App.Vector(-3, 0.7, 0)), False)
sketch9.addGeometry(Part.LineSegment(App.Vector(-3, 0.7, 0), App.Vector(-2.4, 0.7, 0)), False)
sketch9.addGeometry(Part.LineSegment(App.Vector(-2.4, 0.7, 0), App.Vector(-2.4, 1, 0)), False)
sketch9.addGeometry(Part.LineSegment(App.Vector(-2.4, 1, 0), App.Vector(-3, 1, 0)), False)
sketch9.addConstraint(Sketcher.Constraint("Coincident", 0, 2, 1, 1))
sketch9.addConstraint(Sketcher.Constraint("Coincident", 1, 2, 2, 1))
sketch9.addConstraint(Sketcher.Constraint("Coincident", 2, 2, 3, 1))
sketch9.addConstraint(Sketcher.Constraint("Coincident", 3, 2, 0, 1))
sketch9.addConstraint(Sketcher.Constraint("Coincident", 4, 2, 5, 1))
sketch9.addConstraint(Sketcher.Constraint("Coincident", 5, 2, 6, 1))
sketch9.addConstraint(Sketcher.Constraint("Coincident", 6, 2, 7, 1))
sketch9.addConstraint(Sketcher.Constraint("Coincident", 7, 2, 4, 1))
sketch9.addConstraint(Sketcher.Constraint("Vertical", 0))
sketch9.addConstraint(Sketcher.Constraint("Horizontal", 1))
sketch9.addConstraint(Sketcher.Constraint("Vertical", 2))
sketch9.addConstraint(Sketcher.Constraint("Horizontal", 3))
sketch9.addConstraint(Sketcher.Constraint("Vertical", 4))
sketch9.addConstraint(Sketcher.Constraint("Horizontal", 5))
sketch9.addConstraint(Sketcher.Constraint("Vertical", 6))
sketch9.addConstraint(Sketcher.Constraint("Horizontal", 7))
sketch9.addConstraint(Sketcher.Constraint("Symmetric", 1, 2, 4, 2, -2))
sketch9.addConstraint(Sketcher.Constraint("Symmetric", 3, 2, 6, 2, -2))
sketch9.addConstraint(Sketcher.Constraint("DistanceX", 1, 1, 1, 2, Q("0.6 mm")))
sketch9.addConstraint(Sketcher.Constraint("DistanceY", 0, 2, 0, 1, Q("0.3 mm")))
sketch9.addConstraint(Sketcher.Constraint("DistanceX", -1, 1, 1, 2, Q("3 mm")))
sketch9.addConstraint(Sketcher.Constraint("DistanceY", -1, 1, 2, 2, Q("1 mm")))
pad7 = body.newObject("PartDesign::Pad", "Pad006")
pad7.Profile = sketch9
pad7.Length = 4
doc.recompute()

boolean3 = body.newObject("PartDesign::Boolean", "Boolean002")
boolean3.Type = "Fuse"
boolean3.addObjects([body2])

sketch10 = body.newObject("Sketcher::SketchObject", "Sketch009")
sketch10.AttachmentSupport = (doc.getObject("YZ_Plane"), [""])
sketch10.MapMode = "FlatFace"
sketch10.AttachmentOffset = App.Placement(App.Vector(0, 0, 3), App.Rotation())
sketch10.addGeometry(Part.LineSegment(App.Vector(-2.273948, -3.132841, 0), App.Vector(3.57504, -3.132841, 0)), False)
sketch10.addGeometry(Part.LineSegment(App.Vector(3.57504, -3.132841, 0), App.Vector(3.57504, 1.322453, 0)), False)
sketch10.addGeometry(Part.LineSegment(App.Vector(3.57504, 1.322453, 0), App.Vector(2.926828, 1.322453, 0)), False)
sketch10.addGeometry(Part.LineSegment(App.Vector(2.926828, 1.322453, 0), App.Vector(0, 3.014514, 0)), False)
sketch10.addGeometry(Part.LineSegment(App.Vector(0, 3.014514, 0), App.Vector(0, 4.285579, 0)), False)
sketch10.addGeometry(Part.LineSegment(App.Vector(0, 4.285579, 0), App.Vector(-1.116985, 4.285579, 0)), False)
sketch10.addGeometry(Part.LineSegment(App.Vector(-1.116985, 4.285579, 0), App.Vector(-1.116985, 7.462437, 0)), False)
sketch10.addGeometry(Part.ArcOfCircle(Part.Circle(App.Vector(-1.622941, 7.462437, 0), App.Vector(0, 0, 1), 0.505955), math.radians(0), math.radians(180)), False)
sketch10.addGeometry(Part.LineSegment(App.Vector(-2.128896, 7.462437, 0), App.Vector(-2.128896, 4.285579, 0)), False)
sketch10.addGeometry(Part.LineSegment(App.Vector(-2.128896, 4.285579, 0), App.Vector(-3.188083, 4.285579, 0)), False)
sketch10.addGeometry(Part.LineSegment(App.Vector(-3.188083, 4.285579, 0), App.Vector(-3.188083, 0.994664, 0)), False)
sketch10.addGeometry(Part.LineSegment(App.Vector(-3.188083, 0.994664, 0), App.Vector(-2.273948, -3.132841, 0)), False)
sketch10.addConstraint(Sketcher.Constraint("Coincident", 0, 2, 1, 1))
sketch10.addConstraint(Sketcher.Constraint("Coincident", 1, 2, 2, 1))
sketch10.addConstraint(Sketcher.Constraint("Coincident", 2, 2, 3, 1))
sketch10.addConstraint(Sketcher.Constraint("Coincident", 3, 2, 4, 1))
sketch10.addConstraint(Sketcher.Constraint("Coincident", 4, 2, 5, 1))
sketch10.addConstraint(Sketcher.Constraint("Coincident", 5, 2, 6, 1))
sketch10.addConstraint(Sketcher.Constraint("Tangent", 6, 2, 7, 1))
sketch10.addConstraint(Sketcher.Constraint("Tangent", 7, 2, 8, 1))
sketch10.addConstraint(Sketcher.Constraint("Coincident", 8, 2, 9, 1))
sketch10.addConstraint(Sketcher.Constraint("Coincident", 9, 2, 10, 1))
sketch10.addConstraint(Sketcher.Constraint("Coincident", 10, 2, 11, 1))
sketch10.addConstraint(Sketcher.Constraint("Coincident", 11, 2, 0, 1))
sketch10.addConstraint(Sketcher.Constraint("Horizontal", 0))
sketch10.addConstraint(Sketcher.Constraint("Vertical", 1))
sketch10.addConstraint(Sketcher.Constraint("Horizontal", 2))
sketch10.addConstraint(Sketcher.Constraint("Vertical", 4))
sketch10.addConstraint(Sketcher.Constraint("Horizontal", 5))
sketch10.addConstraint(Sketcher.Constraint("Vertical", 6))
sketch10.addConstraint(Sketcher.Constraint("Vertical", 8))
sketch10.addConstraint(Sketcher.Constraint("Horizontal", 9))
sketch10.addConstraint(Sketcher.Constraint("Vertical", 10))
sketch10.addConstraint(Sketcher.Constraint("PointOnObject", 3, 2, -2))
sketch10.addConstraint(Sketcher.Constraint("Horizontal", 5, 2, 8, 2))
sketch10.addConstraint(Sketcher.Constraint("Radius", 7, Q("0.505955 mm")))
sketch10.addConstraint(Sketcher.Constraint("DistanceX", 2, 2, 2, 1, Q("0.648212 mm")))
sketch10.addConstraint(Sketcher.Constraint("Distance", 3, Q("3.380738 mm")))
sketch10.addConstraint(Sketcher.Constraint("Distance", 11, Q("4.227521 mm")))
sketch10.addConstraint(Sketcher.Constraint("DistanceX", 0, 1, 0, 2, Q("5.848988 mm")))
sketch10.addConstraint(Sketcher.Constraint("DistanceX", 5, 2, 5, 1, Q("1.116985 mm")))
sketch10.addConstraint(Sketcher.Constraint("DistanceX", 9, 2, 9, 1, Q("1.059187 mm")))
sketch10.addConstraint(Sketcher.Constraint("DistanceY", 1, 1, 1, 2, Q("4.455294 mm")))
sketch10.addConstraint(Sketcher.Constraint("DistanceY", 4, 1, 4, 2, Q("1.271065 mm")))
sketch10.addConstraint(Sketcher.Constraint("DistanceY", 6, 1, 6, 2, Q("3.176858 mm")))
sketch10.addConstraint(Sketcher.Constraint("DistanceY", 10, 2, 10, 1, Q("3.290915 mm")))
sketch10.addConstraint(Sketcher.Constraint("DistanceY", 0, 2, -1, 1, Q("3.132841 mm")))
pad8 = body.newObject("PartDesign::Pad", "Pad007")
pad8.Profile = sketch10
pad8.Length = 0.4

sketch11 = body.newObject("Sketcher::SketchObject", "Sketch010")
sketch11.AttachmentSupport = (doc.getObject("YZ_Plane"), [""])
sketch11.MapMode = "FlatFace"
sketch11.AttachmentOffset = App.Placement(App.Vector(0, 0, -3), App.Rotation())
sketch11.addGeometry(Part.LineSegment(App.Vector(3.57504, 1.322453, 0), App.Vector(3.57504, -3.132841, 0)), False)
sketch11.addGeometry(Part.LineSegment(App.Vector(3.57504, -3.132841, 0), App.Vector(-2.273948, -3.132841, 0)), False)
sketch11.addGeometry(Part.LineSegment(App.Vector(-2.273948, -3.132841, 0), App.Vector(-3.188083, 0.994664, 0)), False)
sketch11.addGeometry(Part.LineSegment(App.Vector(-3.188083, 0.994664, 0), App.Vector(-3.188083, 4.285579, 0)), False)
sketch11.addGeometry(Part.LineSegment(App.Vector(-3.188083, 4.285579, 0), App.Vector(-2.128896, 4.285579, 0)), False)
sketch11.addGeometry(Part.LineSegment(App.Vector(-2.128896, 4.285579, 0), App.Vector(-2.128896, 7.462437, 0)), False)
sketch11.addGeometry(Part.ArcOfCircle(Part.Circle(App.Vector(-1.622941, 7.462437, 0), App.Vector(0, 0, 1), 0.505955), math.radians(0), math.radians(180)), False)
sketch11.addGeometry(Part.LineSegment(App.Vector(-1.116985, 7.462437, 0), App.Vector(-1.116985, 4.285579, 0)), False)
sketch11.addGeometry(Part.LineSegment(App.Vector(-1.116985, 4.285579, 0), App.Vector(0, 4.285579, 0)), False)
sketch11.addGeometry(Part.LineSegment(App.Vector(0, 4.285579, 0), App.Vector(0, 3.014514, 0)), False)
sketch11.addGeometry(Part.LineSegment(App.Vector(0, 3.014514, 0), App.Vector(2.926828, 1.322453, 0)), False)
sketch11.addGeometry(Part.LineSegment(App.Vector(2.926828, 1.322453, 0), App.Vector(3.57504, 1.322453, 0)), False)
sketch11.addConstraint(Sketcher.Constraint("Coincident", 0, 2, 1, 1))
sketch11.addConstraint(Sketcher.Constraint("Coincident", 1, 2, 2, 1))
sketch11.addConstraint(Sketcher.Constraint("Coincident", 2, 2, 3, 1))
sketch11.addConstraint(Sketcher.Constraint("Coincident", 3, 2, 4, 1))
sketch11.addConstraint(Sketcher.Constraint("Coincident", 4, 2, 5, 1))
sketch11.addConstraint(Sketcher.Constraint("Tangent", 5, 2, 6, 2))
sketch11.addConstraint(Sketcher.Constraint("Tangent", 6, 1, 7, 1))
sketch11.addConstraint(Sketcher.Constraint("Coincident", 7, 2, 8, 1))
sketch11.addConstraint(Sketcher.Constraint("Coincident", 8, 2, 9, 1))
sketch11.addConstraint(Sketcher.Constraint("Coincident", 9, 2, 10, 1))
sketch11.addConstraint(Sketcher.Constraint("Coincident", 10, 2, 11, 1))
sketch11.addConstraint(Sketcher.Constraint("Coincident", 11, 2, 0, 1))
sketch11.addConstraint(Sketcher.Constraint("Vertical", 0))
sketch11.addConstraint(Sketcher.Constraint("Horizontal", 1))
sketch11.addConstraint(Sketcher.Constraint("Vertical", 3))
sketch11.addConstraint(Sketcher.Constraint("Horizontal", 4))
sketch11.addConstraint(Sketcher.Constraint("Vertical", 5))
sketch11.addConstraint(Sketcher.Constraint("Vertical", 7))
sketch11.addConstraint(Sketcher.Constraint("Horizontal", 8))
sketch11.addConstraint(Sketcher.Constraint("Vertical", 9))
sketch11.addConstraint(Sketcher.Constraint("Horizontal", 11))
sketch11.addConstraint(Sketcher.Constraint("PointOnObject", 8, 2, -2))
sketch11.addConstraint(Sketcher.Constraint("Horizontal", 4, 2, 7, 2))
sketch11.addConstraint(Sketcher.Constraint("Radius", 6, Q("0.505955 mm")))
sketch11.addConstraint(Sketcher.Constraint("DistanceX", 11, 1, 11, 2, Q("0.648212 mm")))
sketch11.addConstraint(Sketcher.Constraint("Distance", 2, Q("4.227521 mm")))
sketch11.addConstraint(Sketcher.Constraint("Distance", 10, Q("3.380738 mm")))
sketch11.addConstraint(Sketcher.Constraint("DistanceX", 1, 2, 1, 1, Q("5.848988 mm")))
sketch11.addConstraint(Sketcher.Constraint("DistanceX", 4, 1, 4, 2, Q("1.059187 mm")))
sketch11.addConstraint(Sketcher.Constraint("DistanceX", 8, 1, 8, 2, Q("1.116985 mm")))
sketch11.addConstraint(Sketcher.Constraint("DistanceY", 0, 2, 0, 1, Q("4.455294 mm")))
sketch11.addConstraint(Sketcher.Constraint("DistanceY", 3, 1, 3, 2, Q("3.290915 mm")))
sketch11.addConstraint(Sketcher.Constraint("DistanceY", 5, 1, 5, 2, Q("3.176858 mm")))
sketch11.addConstraint(Sketcher.Constraint("DistanceY", 9, 2, 9, 1, Q("1.271065 mm")))
sketch11.addConstraint(Sketcher.Constraint("DistanceY", 0, 2, -1, 1, Q("3.132841 mm")))
pad9 = body.newObject("PartDesign::Pad", "Pad008")
pad9.Profile = sketch11
pad9.Length = 0.4
pad9.Reversed = True

sketch12 = body.newObject("Sketcher::SketchObject", "Sketch011")
sketch12.AttachmentSupport = (doc.getObject("YZ_Plane"), [""])
sketch12.MapMode = "FlatFace"
sketch12.AttachmentOffset = App.Placement(App.Vector(0, 0, 3.4), App.Rotation())
sketch12.addGeometry(Part.LineSegment(App.Vector(-1.116985, 7.968392, 0), App.Vector(-2.128896, 7.968392, 0)), False)
sketch12.addGeometry(Part.LineSegment(App.Vector(-2.128896, 7.968392, 0), App.Vector(-2.128896, 5.59742, 0)), False)
sketch12.addGeometry(Part.LineSegment(App.Vector(-2.128896, 5.59742, 0), App.Vector(-1.116985, 5.59742, 0)), False)
sketch12.addGeometry(Part.LineSegment(App.Vector(-1.116985, 5.59742, 0), App.Vector(-1.116985, 7.968392, 0)), False)
sketch12.addConstraint(Sketcher.Constraint("Coincident", 0, 2, 1, 1))
sketch12.addConstraint(Sketcher.Constraint("Coincident", 1, 2, 2, 1))
sketch12.addConstraint(Sketcher.Constraint("Coincident", 2, 2, 3, 1))
sketch12.addConstraint(Sketcher.Constraint("Coincident", 3, 2, 0, 1))
sketch12.addConstraint(Sketcher.Constraint("Horizontal", 0))
sketch12.addConstraint(Sketcher.Constraint("Vertical", 1))
sketch12.addConstraint(Sketcher.Constraint("Horizontal", 2))
sketch12.addConstraint(Sketcher.Constraint("Vertical", 3))
sketch12.addConstraint(Sketcher.Constraint("DistanceX", 0, 2, 0, 1, Q("1.011911 mm")))
sketch12.addConstraint(Sketcher.Constraint("DistanceY", 1, 2, 1, 1, Q("2.370972 mm")))
sketch12.addConstraint(Sketcher.Constraint("DistanceY", -1, 1, 0, 2, Q("7.968392 mm")))
sketch12.addConstraint(Sketcher.Constraint("DistanceX", 0, 2, -1, 1, Q("2.128896 mm")))
pocket3 = body.newObject("PartDesign::Pocket", "Pocket002")
pocket3.Profile = sketch12
pocket3.Type = "ThroughAll"
pocket3.Midplane = True

doc.recompute()
